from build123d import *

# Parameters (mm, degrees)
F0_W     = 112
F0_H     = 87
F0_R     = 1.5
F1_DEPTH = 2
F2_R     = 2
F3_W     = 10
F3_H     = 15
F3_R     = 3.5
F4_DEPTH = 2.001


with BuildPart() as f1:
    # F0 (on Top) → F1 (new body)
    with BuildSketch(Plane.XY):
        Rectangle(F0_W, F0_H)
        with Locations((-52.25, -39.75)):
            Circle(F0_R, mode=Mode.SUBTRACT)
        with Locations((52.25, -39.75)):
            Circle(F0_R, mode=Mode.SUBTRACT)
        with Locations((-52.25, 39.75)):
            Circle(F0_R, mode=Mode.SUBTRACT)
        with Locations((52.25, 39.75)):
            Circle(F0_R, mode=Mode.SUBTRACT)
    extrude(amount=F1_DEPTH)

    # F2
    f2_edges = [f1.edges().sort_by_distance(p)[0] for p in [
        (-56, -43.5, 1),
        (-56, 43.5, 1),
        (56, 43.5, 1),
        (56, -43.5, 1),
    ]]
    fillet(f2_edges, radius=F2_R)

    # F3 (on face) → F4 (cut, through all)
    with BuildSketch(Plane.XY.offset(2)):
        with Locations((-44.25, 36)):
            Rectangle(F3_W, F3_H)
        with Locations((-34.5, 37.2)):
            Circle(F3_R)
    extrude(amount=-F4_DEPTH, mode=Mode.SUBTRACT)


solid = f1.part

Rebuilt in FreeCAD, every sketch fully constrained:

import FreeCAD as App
import Part
import Sketcher
Q = App.Units.Quantity


def edges_at(feature, points):
    """Names of the edges that pass closest to the given points."""
    edges = feature.Shape.Edges
    near = lambda p: min(range(len(edges)), key=lambda i: edges[i].distToShape(Part.Vertex(*p))[0])
    return sorted({f"Edge{near(p) + 1}" for p in points})


def add_polygon(sketch, points):
    """Adds a closed chain of lines whose ends are joined by coincident constraints."""
    first, n = sketch.GeometryCount, len(points)
    for a, b in zip(points, points[1:] + points[:1]):
        sketch.addGeometry(Part.LineSegment(App.Vector(*a, 0), App.Vector(*b, 0)), False)
    for i in range(n):
        sketch.addConstraint(Sketcher.Constraint("Coincident", first + i, 2, first + (i + 1) % n, 1))

doc = App.newDocument("Part")
params = doc.addObject("Spreadsheet::Sheet", "Params")
for row, (alias, value) in enumerate([
    ("sketch1_diameter", "3 mm"),
    ("sketch1_width", "112 mm"),
    ("sketch1_height", "87 mm"),
    ("pad1_length", "2 mm"),
    ("fillet_radius", "2 mm"),
    ("sketch2_diameter", "7 mm"),
    ("sketch2_width", "10 mm"),
    ("sketch2_height", "15 mm"),
], start=1):
    params.set(f"A{row}", alias)
    params.set(f"B{row}", "=" + value)
    params.setAlias(f"B{row}", alias)

body = doc.addObject("PartDesign::Body", "Body")

# Sketch on XY plane
sketch1 = doc.addObject("Sketcher::SketchObject", "Sketch")
body.addObject(sketch1)
sketch1.AttachmentSupport = (doc.XY_Plane, [""])
sketch1.MapMode = "FlatFace"
add_polygon(sketch1, [(-56, 43.5), (-56, -43.5), (56, -43.5), (56, 43.5)])  # lines 0-3
sketch1.addGeometry(Part.Circle(App.Vector(-52.25, -39.75, 0), App.Vector(0, 0, 1), 1.5), False)  # 4
sketch1.addGeometry(Part.Circle(App.Vector(52.25, -39.75, 0), App.Vector(0, 0, 1), 1.5), False)  # 5
sketch1.addGeometry(Part.Circle(App.Vector(-52.25, 39.75, 0), App.Vector(0, 0, 1), 1.5), False)  # 6
sketch1.addGeometry(Part.Circle(App.Vector(52.25, 39.75, 0), App.Vector(0, 0, 1), 1.5), False)  # 7
sketch1.addConstraint([
    Sketcher.Constraint("Vertical", 0),
    Sketcher.Constraint("Horizontal", 1),
    Sketcher.Constraint("Vertical", 2),
    Sketcher.Constraint("Horizontal", 3),
    Sketcher.Constraint("Equal", 4, 5),
    Sketcher.Constraint("Equal", 5, 6),
    Sketcher.Constraint("Equal", 6, 7),
    Sketcher.Constraint("Symmetric", 5, 3, 6, 3, -1, 1),
    Sketcher.Constraint("Symmetric", 4, 3, 7, 3, -1, 1),
    Sketcher.Constraint("Symmetric", 0, 2, 2, 2, -1, 1),
    Sketcher.Constraint("Symmetric", 4, 3, 5, 3, -2),
    Sketcher.Constraint("Diameter", 4, Q("3 mm")),
    Sketcher.Constraint("DistanceX", 1, 1, 1, 2, Q("112 mm")),
    Sketcher.Constraint("DistanceY", 0, 2, 0, 1, Q("87 mm")),
    Sketcher.Constraint("DistanceX", 4, 3, 5, 3, Q("104.5 mm")),
    Sketcher.Constraint("DistanceY", 4, 3, 6, 3, Q("79.5 mm")),
])
sketch1.setExpression("Constraints[15]", "Params.sketch1_diameter")
sketch1.setExpression("Constraints[16]", "Params.sketch1_width")
sketch1.setExpression("Constraints[17]", "Params.sketch1_height")
pad1 = doc.addObject("PartDesign::Pad", "Pad")
body.addObject(pad1)
pad1.Profile = sketch1
pad1.setExpression("Length", "Params.pad1_length")
doc.recompute()

fillet = doc.addObject("PartDesign::Fillet", "Fillet")
body.addObject(fillet)
fillet.Base = (pad1, edges_at(pad1, [
    (-56, -43.5, 1),
    (-56, 43.5, 1),
    (56, 43.5, 1),
    (56, -43.5, 1),
]))
fillet.setExpression("Radius", "Params.fillet_radius")

# Sketch on XY plane
sketch2 = doc.addObject("Sketcher::SketchObject", "Sketch001")
body.addObject(sketch2)
sketch2.AttachmentSupport = (doc.XY_Plane, [""])
sketch2.MapMode = "FlatFace"
sketch2.AttachmentOffset = App.Placement(App.Vector(0, 0, 2), App.Rotation())
add_polygon(sketch2, [(-49.25, 43.5), (-49.25, 28.5), (-39.25, 28.5), (-39.25, 43.5)])  # lines 0-3
sketch2.addGeometry(Part.Circle(App.Vector(-34.5, 37.2, 0), App.Vector(0, 0, 1), 3.5), False)  # 4
sketch2.addConstraint([
    Sketcher.Constraint("Vertical", 0),
    Sketcher.Constraint("Horizontal", 1),
    Sketcher.Constraint("Vertical", 2),
    Sketcher.Constraint("Horizontal", 3),
    Sketcher.Constraint("Diameter", 4, Q("7 mm")),
    Sketcher.Constraint("DistanceX", 1, 1, 1, 2, Q("10 mm")),
    Sketcher.Constraint("DistanceY", 0, 2, 0, 1, Q("15 mm")),
    Sketcher.Constraint("DistanceX", 4, 3, -1, 1, Q("34.5 mm")),
    Sketcher.Constraint("DistanceY", -1, 1, 4, 3, Q("37.2 mm")),
    Sketcher.Constraint("DistanceY", -1, 1, 0, 2, Q("28.5 mm")),
    Sketcher.Constraint("DistanceX", 0, 2, -1, 1, Q("49.25 mm")),
])
sketch2.setExpression("Constraints[8]", "Params.sketch2_diameter")
sketch2.setExpression("Constraints[9]", "Params.sketch2_width")
sketch2.setExpression("Constraints[10]", "Params.sketch2_height")
pocket1 = doc.addObject("PartDesign::Pocket", "Pocket")
body.addObject(pocket1)
pocket1.Profile = sketch2
pocket1.Type = "ThroughAll"

doc.recompute()
